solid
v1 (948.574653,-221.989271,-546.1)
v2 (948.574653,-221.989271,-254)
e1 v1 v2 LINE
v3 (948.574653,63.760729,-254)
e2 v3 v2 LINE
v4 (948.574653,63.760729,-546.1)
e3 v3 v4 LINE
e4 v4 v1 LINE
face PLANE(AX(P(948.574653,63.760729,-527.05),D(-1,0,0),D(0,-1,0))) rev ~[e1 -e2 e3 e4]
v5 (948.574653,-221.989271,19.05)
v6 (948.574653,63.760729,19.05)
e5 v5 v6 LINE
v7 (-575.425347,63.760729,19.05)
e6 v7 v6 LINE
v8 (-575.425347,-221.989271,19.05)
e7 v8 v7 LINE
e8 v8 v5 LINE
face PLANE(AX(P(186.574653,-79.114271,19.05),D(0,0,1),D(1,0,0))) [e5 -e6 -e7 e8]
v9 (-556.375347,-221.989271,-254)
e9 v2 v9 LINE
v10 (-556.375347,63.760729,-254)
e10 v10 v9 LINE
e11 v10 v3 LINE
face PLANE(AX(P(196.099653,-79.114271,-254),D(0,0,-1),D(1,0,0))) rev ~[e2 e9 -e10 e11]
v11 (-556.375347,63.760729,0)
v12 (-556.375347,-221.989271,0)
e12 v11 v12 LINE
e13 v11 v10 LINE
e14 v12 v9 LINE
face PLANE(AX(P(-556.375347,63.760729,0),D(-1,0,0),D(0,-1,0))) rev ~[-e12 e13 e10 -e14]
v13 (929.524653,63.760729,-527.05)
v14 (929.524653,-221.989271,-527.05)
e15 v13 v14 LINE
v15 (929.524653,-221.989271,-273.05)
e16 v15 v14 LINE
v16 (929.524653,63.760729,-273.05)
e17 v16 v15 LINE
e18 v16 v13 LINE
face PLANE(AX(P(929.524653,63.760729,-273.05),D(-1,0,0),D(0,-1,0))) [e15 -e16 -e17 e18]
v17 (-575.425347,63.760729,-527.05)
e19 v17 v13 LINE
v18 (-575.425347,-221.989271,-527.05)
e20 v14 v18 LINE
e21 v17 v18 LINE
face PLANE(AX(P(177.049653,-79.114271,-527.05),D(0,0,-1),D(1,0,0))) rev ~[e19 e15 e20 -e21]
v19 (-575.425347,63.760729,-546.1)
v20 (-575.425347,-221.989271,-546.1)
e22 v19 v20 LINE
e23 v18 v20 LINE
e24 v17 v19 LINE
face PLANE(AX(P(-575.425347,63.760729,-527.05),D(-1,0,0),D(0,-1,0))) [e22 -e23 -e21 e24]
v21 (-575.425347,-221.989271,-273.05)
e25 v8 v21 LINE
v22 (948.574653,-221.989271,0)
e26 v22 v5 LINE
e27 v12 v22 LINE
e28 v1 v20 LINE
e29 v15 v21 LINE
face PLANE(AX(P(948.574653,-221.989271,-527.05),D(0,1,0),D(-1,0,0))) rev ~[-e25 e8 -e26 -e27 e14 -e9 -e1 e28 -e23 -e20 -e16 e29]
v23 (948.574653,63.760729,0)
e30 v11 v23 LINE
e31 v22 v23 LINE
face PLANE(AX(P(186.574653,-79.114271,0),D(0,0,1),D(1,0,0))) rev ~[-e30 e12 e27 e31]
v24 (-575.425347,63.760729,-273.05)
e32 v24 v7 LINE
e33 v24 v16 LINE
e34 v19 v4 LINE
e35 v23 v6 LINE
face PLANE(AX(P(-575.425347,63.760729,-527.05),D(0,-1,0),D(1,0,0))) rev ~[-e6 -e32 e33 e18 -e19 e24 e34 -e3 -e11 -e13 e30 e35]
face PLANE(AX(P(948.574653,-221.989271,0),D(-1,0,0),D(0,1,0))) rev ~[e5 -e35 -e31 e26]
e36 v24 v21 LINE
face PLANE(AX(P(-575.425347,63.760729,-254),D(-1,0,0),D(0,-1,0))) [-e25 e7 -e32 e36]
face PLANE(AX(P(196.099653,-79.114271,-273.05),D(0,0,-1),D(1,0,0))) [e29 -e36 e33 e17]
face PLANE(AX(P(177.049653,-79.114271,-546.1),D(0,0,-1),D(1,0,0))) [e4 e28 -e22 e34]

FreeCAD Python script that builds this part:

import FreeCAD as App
import Part
import Sketcher

V = App.Vector
Q = App.Units.Quantity


def add_polygon(sketch, points):
    """Adds a closed chain of lines whose ends are joined by coincident constraints."""
    first, n = sketch.GeometryCount, len(points)
    for a, b in zip(points, points[1:] + points[:1]):
        sketch.addGeometry(Part.LineSegment(App.Vector(*a, 0), App.Vector(*b, 0)), False)
    for i in range(n):
        sketch.addConstraint(Sketcher.Constraint("Coincident", first + i, 2, first + (i + 1) % n, 1))

doc = App.newDocument("Part")
body = doc.addObject("PartDesign::Body", "Body")

# Sketch on XY plane
sketch1 = body.newObject("Sketcher::SketchObject", "Sketch")
sketch1.AttachmentSupport = (doc.getObject("XY_Plane"), [""])
sketch1.MapMode = "FlatFace"
add_polygon(sketch1, [(-575, 64), (-575, -222), (949, -222), (949, 64)])  # lines 0-3
sketch1.addConstraint([
    Sketcher.Constraint("Vertical", 0),
    Sketcher.Constraint("Horizontal", 1),
    Sketcher.Constraint("Vertical", 2),
    Sketcher.Constraint("Horizontal", 3),
    Sketcher.Constraint("DistanceX", 1, 1, 1, 2, Q("60 in")),
    Sketcher.Constraint("DistanceY", 0, 2, 0, 1, Q("11.25 in")),
    Sketcher.Constraint("DistanceY", 0, 2, -1, 1, 221.989271),
    Sketcher.Constraint("DistanceX", 0, 2, -1, 1, 575.425347),
])
pad1 = body.newObject("PartDesign::Pad", "Pad")
pad1.Profile = sketch1
pad1.Length = Q("0.75 in")

# Sketch on XY plane
sketch2 = body.newObject("Sketcher::SketchObject", "Sketch001")
sketch2.AttachmentSupport = (doc.getObject("XY_Plane"), [""])
sketch2.MapMode = "FlatFace"
add_polygon(sketch2, [(-575, -222), (-575, 64), (-556, 64), (-556, -222)])  # lines 0-3
sketch2.addConstraint([
    Sketcher.Constraint("Vertical", 0),
    Sketcher.Constraint("Horizontal", 1),
    Sketcher.Constraint("Vertical", 2),
    Sketcher.Constraint("Horizontal", 3),
    Sketcher.Constraint("DistanceX", 1, 1, 1, 2, Q("0.75 in")),
    Sketcher.Constraint("DistanceY", 0, 1, 0, 2, Q("11.25 in")),
    Sketcher.Constraint("DistanceY", -1, 1, 0, 2, 63.760729),
    Sketcher.Constraint("DistanceX", 0, 2, -1, 1, 575.425347),
])
pad2 = body.newObject("PartDesign::Pad", "Pad001")
pad2.Profile = sketch2
pad2.Length = Q("10 in")
pad2.Reversed = True

# Sketch on XY plane
sketch3 = body.newObject("Sketcher::SketchObject", "Sketch002")
sketch3.AttachmentSupport = (doc.getObject("XY_Plane"), [""])
sketch3.MapMode = "FlatFace"
sketch3.AttachmentOffset = App.Placement(V(0, 0, -10 * 25.4), App.Rotation())
add_polygon(sketch3, [(949, 64), (949, -222), (-575, -222), (-575, 64)])  # lines 0-3
sketch3.addConstraint([
    Sketcher.Constraint("Vertical", 0),
    Sketcher.Constraint("Horizontal", 1),
    Sketcher.Constraint("Vertical", 2),
    Sketcher.Constraint("Horizontal", 3),
    Sketcher.Constraint("DistanceX", 1, 2, 1, 1, Q("60 in")),
    Sketcher.Constraint("DistanceY", 0, 2, 0, 1, Q("11.25 in")),
    Sketcher.Constraint("DistanceY", 0, 2, -1, 1, 221.989271),
    Sketcher.Constraint("DistanceX", -1, 1, 0, 2, 948.574653),
])
pad3 = body.newObject("PartDesign::Pad", "Pad002")
pad3.Profile = sketch3
pad3.Length = Q("0.75 in")
pad3.Reversed = True

# Sketch on XY plane
sketch4 = body.newObject("Sketcher::SketchObject", "Sketch003")
sketch4.AttachmentSupport = (doc.getObject("XY_Plane"), [""])
sketch4.MapMode = "FlatFace"
sketch4.AttachmentOffset = App.Placement(V(0, 0, -10.75 * 25.4), App.Rotation())
add_polygon(sketch4, [(930, -222), (930, 64), (949, 64), (949, -222)])  # lines 0-3
sketch4.addConstraint([
    Sketcher.Constraint("Vertical", 0),
    Sketcher.Constraint("Horizontal", 1),
    Sketcher.Constraint("Vertical", 2),
    Sketcher.Constraint("Horizontal", 3),
    Sketcher.Constraint("DistanceX", 1, 1, 1, 2, Q("0.75 in")),
    Sketcher.Constraint("DistanceY", 0, 1, 0, 2, Q("11.25 in")),
    Sketcher.Constraint("DistanceY", -1, 1, 0, 2, 63.760729),
    Sketcher.Constraint("DistanceX", -1, 1, 0, 2, 929.524653),
])
pad4 = body.newObject("PartDesign::Pad", "Pad003")
pad4.Profile = sketch4
pad4.Length = Q("10 in")
pad4.Reversed = True

# Sketch on XY plane
sketch5 = body.newObject("Sketcher::SketchObject", "Sketch004")
sketch5.AttachmentSupport = (doc.getObject("XY_Plane"), [""])
sketch5.MapMode = "FlatFace"
sketch5.AttachmentOffset = App.Placement(V(0, 0, -20.75 * 25.4), App.Rotation())
add_polygon(sketch5, [(-575, -222), (-575, 64), (949, 64), (949, -222)])  # lines 0-3
sketch5.addConstraint([
    Sketcher.Constraint("Vertical", 0),
    Sketcher.Constraint("Horizontal", 1),
    Sketcher.Constraint("Vertical", 2),
    Sketcher.Constraint("Horizontal", 3),
    Sketcher.Constraint("DistanceX", 1, 1, 1, 2, Q("60 in")),
    Sketcher.Constraint("DistanceY", 0, 1, 0, 2, Q("11.25 in")),
    Sketcher.Constraint("DistanceY", -1, 1, 0, 2, 63.760729),
    Sketcher.Constraint("DistanceX", 0, 2, -1, 1, 575.425347),
])
pad5 = body.newObject("PartDesign::Pad", "Pad004")
pad5.Profile = sketch5
pad5.Length = Q("0.75 in")
pad5.Reversed = True

doc.recompute()
